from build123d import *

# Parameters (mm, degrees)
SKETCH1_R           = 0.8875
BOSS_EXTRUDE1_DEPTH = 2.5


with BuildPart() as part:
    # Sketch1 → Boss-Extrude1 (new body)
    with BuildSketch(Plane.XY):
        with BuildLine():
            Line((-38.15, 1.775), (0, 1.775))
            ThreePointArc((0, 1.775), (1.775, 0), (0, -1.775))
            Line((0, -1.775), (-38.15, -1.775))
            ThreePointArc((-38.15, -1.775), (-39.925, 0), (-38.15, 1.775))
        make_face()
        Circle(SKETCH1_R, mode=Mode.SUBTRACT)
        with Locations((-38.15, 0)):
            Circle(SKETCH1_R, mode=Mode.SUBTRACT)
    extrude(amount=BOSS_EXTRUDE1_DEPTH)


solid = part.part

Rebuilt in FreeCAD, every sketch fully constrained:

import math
import FreeCAD as App
import Part
import Sketcher
from FreeCAD import Vector
Q = App.Units.Quantity

doc = App.newDocument("Part")
body = doc.addObject("PartDesign::Body", "Body")

# Sketch on XY plane
sketch1 = doc.addObject("Sketcher::SketchObject", "Sketch")
body.addObject(sketch1)
sketch1.AttachmentSupport = (doc.XY_Plane, [""])
sketch1.MapMode = "FlatFace"
sketch1.addGeometry([
    Part.LineSegment(Vector(0, 1.8, 0), Vector(-38.1, 1.8, 0)),  # 0
    Part.ArcOfCircle(Part.Circle(Vector(-38.1, 0, 0), Vector(0, 0, 1), 1.8), math.radians(90), math.radians(270)),  # 1
    Part.LineSegment(Vector(-38.1, -1.8, 0), Vector(0, -1.8, 0)),  # 2
    Part.ArcOfCircle(Part.Circle(Vector(0, 0, 0), Vector(0, 0, 1), 1.8), math.radians(-90), math.radians(90)),  # 3
    Part.Circle(Vector(0, 0, 0), Vector(0, 0, 1), 0.9),  # 4
    Part.Circle(Vector(-38.1, 0, 0), Vector(0, 0, 1), 0.9),  # 5
], False)
sketch1.addConstraint([
    Sketcher.Constraint("Tangent", 0, 2, 1, 1),
    Sketcher.Constraint("Tangent", 1, 2, 2, 1),
    Sketcher.Constraint("Tangent", 2, 2, 3, 1),
    Sketcher.Constraint("Tangent", 3, 2, 0, 1),
    Sketcher.Constraint("Horizontal", 0),
    Sketcher.Constraint("Horizontal", 2),
    Sketcher.Constraint("Coincident", 3, 3, -1, 1),
    Sketcher.Constraint("Coincident", 4, 3, -1, 1),
    Sketcher.Constraint("Coincident", 5, 3, 1, 3),
    Sketcher.Constraint("Equal", 4, 5),
    Sketcher.Constraint("Diameter", 4, Q("1.775 mm")),
    Sketcher.Constraint("Radius", 1, Q("1.775 mm")),
    Sketcher.Constraint("DistanceX", 0, 2, 0, 1, Q("38.15 mm")),
])
pad1 = doc.addObject("PartDesign::Pad", "Pad")
body.addObject(pad1)
pad1.Profile = sketch1
pad1.Length = 2.5

doc.recompute()
